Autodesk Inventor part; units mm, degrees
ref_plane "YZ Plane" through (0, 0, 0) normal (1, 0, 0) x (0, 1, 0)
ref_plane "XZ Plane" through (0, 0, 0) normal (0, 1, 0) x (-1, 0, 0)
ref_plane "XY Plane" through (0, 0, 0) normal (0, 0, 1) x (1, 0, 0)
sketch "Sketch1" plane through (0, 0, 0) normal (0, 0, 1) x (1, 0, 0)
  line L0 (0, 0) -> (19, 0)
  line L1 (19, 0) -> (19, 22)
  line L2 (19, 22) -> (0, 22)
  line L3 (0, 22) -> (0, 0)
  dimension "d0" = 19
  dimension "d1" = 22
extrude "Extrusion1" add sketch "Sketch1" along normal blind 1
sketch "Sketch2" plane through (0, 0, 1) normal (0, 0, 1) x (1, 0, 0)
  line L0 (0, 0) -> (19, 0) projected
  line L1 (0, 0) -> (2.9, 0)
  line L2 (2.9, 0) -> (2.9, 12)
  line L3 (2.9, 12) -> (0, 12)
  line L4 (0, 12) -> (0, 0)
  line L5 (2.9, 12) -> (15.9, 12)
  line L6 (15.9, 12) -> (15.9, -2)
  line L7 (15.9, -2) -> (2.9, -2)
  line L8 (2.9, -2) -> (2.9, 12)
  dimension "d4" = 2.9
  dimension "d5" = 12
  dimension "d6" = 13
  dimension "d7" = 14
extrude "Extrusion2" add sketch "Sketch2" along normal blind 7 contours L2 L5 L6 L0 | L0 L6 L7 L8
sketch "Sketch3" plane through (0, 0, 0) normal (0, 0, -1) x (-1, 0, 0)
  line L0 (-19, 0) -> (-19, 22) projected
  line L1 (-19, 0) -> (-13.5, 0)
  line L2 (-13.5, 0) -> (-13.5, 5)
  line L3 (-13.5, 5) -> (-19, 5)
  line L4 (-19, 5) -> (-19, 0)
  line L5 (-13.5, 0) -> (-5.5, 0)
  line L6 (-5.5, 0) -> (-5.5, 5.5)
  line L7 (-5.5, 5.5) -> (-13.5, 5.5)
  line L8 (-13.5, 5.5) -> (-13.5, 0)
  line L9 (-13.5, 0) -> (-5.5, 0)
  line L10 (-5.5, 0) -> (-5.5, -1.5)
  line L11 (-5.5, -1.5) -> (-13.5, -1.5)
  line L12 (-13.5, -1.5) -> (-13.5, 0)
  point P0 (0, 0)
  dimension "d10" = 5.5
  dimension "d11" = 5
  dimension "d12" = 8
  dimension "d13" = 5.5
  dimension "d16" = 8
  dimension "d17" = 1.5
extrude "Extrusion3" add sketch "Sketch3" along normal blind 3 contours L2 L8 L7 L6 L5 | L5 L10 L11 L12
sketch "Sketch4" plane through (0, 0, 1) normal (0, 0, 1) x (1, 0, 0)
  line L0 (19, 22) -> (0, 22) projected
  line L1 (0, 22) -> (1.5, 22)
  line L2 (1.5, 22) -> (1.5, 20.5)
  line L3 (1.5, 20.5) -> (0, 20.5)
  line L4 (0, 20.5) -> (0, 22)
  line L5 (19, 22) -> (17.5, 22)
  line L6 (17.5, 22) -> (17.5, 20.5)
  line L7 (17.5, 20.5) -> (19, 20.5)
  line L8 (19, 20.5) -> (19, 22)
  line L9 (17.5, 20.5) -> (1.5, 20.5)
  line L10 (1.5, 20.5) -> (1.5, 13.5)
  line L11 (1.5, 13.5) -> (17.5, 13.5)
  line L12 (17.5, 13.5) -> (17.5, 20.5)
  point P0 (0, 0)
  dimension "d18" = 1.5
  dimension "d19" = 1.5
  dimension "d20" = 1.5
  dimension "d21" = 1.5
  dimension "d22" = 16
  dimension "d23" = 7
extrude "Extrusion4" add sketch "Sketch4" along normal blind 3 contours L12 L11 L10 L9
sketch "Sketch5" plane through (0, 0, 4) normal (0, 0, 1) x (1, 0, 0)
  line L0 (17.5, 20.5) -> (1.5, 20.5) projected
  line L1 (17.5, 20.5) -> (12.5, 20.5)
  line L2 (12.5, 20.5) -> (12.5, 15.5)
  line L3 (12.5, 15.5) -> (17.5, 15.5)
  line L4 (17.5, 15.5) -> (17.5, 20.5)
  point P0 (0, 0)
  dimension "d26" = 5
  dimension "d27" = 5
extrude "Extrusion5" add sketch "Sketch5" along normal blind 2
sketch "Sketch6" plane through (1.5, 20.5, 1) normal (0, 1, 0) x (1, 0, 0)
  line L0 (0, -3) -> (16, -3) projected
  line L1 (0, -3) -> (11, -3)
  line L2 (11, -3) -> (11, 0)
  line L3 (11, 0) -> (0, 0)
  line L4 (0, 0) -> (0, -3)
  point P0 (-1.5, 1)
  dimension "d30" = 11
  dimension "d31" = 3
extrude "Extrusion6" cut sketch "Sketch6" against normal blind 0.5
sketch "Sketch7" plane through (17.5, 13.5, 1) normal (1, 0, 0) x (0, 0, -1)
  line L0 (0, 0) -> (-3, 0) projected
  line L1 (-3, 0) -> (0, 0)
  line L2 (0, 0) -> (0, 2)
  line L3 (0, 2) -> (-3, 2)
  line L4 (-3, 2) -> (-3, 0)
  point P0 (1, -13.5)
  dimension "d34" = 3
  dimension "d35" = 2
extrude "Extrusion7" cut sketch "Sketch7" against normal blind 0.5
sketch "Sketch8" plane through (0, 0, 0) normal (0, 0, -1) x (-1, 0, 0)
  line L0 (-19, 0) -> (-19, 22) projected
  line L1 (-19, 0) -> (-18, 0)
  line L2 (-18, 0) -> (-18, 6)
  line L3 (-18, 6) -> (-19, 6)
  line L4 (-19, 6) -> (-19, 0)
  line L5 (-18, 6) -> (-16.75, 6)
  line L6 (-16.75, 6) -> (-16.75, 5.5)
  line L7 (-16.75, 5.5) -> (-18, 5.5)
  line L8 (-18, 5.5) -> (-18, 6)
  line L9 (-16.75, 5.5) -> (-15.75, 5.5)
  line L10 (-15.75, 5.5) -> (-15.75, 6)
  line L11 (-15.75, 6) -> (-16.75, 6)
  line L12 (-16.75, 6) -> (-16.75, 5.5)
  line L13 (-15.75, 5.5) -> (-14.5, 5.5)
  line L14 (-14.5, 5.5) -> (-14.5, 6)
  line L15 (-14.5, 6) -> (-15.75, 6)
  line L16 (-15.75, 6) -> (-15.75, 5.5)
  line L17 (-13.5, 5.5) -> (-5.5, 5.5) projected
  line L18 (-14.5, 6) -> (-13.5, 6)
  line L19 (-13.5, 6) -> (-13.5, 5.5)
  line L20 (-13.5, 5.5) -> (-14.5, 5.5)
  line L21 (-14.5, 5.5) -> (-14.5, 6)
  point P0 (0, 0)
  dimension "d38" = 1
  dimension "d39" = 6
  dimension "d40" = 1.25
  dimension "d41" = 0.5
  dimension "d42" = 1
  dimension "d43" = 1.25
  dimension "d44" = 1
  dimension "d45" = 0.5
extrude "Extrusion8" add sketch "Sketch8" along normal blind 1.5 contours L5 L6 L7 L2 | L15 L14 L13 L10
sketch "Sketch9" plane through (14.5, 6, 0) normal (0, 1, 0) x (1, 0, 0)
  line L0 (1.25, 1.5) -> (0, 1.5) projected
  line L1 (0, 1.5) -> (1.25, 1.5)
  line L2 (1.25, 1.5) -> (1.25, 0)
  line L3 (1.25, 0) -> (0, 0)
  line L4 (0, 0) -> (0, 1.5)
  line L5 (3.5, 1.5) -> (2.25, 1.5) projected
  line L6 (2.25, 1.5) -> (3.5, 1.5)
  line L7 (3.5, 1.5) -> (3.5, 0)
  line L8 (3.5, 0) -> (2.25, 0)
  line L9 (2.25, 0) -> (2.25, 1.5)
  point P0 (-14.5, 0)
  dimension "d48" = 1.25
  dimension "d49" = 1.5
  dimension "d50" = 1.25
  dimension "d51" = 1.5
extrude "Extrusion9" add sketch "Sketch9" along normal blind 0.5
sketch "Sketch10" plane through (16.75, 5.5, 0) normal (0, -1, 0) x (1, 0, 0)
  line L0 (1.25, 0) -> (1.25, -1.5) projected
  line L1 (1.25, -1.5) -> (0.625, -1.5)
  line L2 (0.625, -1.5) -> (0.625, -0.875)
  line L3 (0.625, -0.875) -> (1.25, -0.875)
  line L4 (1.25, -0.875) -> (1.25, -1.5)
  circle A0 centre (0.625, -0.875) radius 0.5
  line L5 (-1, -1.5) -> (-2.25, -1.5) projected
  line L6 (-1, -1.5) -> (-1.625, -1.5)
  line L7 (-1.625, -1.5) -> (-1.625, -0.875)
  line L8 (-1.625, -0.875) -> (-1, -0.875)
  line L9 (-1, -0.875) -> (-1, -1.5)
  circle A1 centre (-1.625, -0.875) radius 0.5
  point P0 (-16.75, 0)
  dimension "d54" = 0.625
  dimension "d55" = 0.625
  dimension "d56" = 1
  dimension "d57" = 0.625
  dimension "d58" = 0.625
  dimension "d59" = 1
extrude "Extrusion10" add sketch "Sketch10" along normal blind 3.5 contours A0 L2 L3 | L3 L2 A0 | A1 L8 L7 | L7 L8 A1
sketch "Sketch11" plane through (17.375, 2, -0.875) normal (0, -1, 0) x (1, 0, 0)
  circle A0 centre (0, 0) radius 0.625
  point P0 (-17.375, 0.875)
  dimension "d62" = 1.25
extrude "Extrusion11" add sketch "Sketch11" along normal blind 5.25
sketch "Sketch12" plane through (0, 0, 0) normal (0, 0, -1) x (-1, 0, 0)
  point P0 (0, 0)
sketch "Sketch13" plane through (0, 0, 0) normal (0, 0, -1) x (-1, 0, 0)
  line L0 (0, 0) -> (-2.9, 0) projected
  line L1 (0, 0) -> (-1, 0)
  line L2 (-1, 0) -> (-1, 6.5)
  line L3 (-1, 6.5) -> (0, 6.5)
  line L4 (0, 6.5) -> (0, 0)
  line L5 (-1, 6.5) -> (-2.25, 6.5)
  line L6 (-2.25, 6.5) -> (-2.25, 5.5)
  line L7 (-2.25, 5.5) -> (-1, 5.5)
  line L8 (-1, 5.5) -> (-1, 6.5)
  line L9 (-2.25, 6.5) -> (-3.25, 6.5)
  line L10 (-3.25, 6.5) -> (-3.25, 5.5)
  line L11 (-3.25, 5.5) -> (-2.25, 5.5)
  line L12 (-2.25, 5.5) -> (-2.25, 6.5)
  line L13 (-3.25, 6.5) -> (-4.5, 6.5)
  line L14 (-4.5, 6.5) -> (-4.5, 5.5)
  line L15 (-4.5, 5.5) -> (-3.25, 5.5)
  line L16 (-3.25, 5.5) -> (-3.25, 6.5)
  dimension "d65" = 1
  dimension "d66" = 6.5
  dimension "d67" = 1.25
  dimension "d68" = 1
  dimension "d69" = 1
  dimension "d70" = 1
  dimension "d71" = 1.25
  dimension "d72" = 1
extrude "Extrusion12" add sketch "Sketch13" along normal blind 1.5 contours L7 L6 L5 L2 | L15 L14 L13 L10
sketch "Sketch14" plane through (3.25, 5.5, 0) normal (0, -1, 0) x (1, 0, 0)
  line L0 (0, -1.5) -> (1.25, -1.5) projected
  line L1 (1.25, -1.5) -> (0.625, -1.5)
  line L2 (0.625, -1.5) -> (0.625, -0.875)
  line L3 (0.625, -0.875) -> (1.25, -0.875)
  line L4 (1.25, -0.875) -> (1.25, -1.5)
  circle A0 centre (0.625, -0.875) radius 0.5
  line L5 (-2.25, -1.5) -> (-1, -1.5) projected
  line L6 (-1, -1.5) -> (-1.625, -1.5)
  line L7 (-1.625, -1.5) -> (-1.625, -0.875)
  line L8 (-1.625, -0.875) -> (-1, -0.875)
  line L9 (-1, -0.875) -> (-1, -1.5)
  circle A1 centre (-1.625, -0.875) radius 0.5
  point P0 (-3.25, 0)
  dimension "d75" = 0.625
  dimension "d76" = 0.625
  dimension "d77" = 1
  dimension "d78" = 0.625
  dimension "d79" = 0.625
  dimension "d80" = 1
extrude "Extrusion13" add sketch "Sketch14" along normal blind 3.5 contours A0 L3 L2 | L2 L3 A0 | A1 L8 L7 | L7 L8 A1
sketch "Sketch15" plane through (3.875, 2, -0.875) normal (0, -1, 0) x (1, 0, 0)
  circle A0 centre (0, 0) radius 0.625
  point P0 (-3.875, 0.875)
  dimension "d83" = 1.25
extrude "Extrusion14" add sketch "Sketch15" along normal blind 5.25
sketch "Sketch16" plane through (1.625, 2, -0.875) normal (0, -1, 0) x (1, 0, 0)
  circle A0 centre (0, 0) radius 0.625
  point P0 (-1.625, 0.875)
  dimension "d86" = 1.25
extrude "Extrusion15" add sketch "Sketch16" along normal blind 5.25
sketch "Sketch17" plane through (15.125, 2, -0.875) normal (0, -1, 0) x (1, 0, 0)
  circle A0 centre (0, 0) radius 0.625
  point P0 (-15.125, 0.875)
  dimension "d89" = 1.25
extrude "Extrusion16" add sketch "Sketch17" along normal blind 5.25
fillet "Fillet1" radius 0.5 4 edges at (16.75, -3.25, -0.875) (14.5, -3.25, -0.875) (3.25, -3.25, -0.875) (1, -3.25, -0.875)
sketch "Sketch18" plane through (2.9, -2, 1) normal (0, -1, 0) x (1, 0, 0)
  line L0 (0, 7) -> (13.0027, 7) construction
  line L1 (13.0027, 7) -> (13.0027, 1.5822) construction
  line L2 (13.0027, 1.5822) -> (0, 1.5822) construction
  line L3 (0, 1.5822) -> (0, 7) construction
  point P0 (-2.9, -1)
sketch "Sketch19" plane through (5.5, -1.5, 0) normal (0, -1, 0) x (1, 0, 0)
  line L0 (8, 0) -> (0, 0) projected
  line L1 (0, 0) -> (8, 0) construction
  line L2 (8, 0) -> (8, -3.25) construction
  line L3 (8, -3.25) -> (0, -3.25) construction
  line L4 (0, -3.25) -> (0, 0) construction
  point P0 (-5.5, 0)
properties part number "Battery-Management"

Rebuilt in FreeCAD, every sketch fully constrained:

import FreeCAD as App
import Part
import Sketcher
Q = App.Units.Quantity


def edges_at(feature, points):
    """Names of the edges that pass closest to the given points."""
    edges = feature.Shape.Edges
    near = lambda p: min(range(len(edges)), key=lambda i: edges[i].distToShape(Part.Vertex(*p))[0])
    return sorted({f"Edge{near(p) + 1}" for p in points})


def add_polygon(sketch, points):
    """Adds a closed chain of lines whose ends are joined by coincident constraints."""
    first, n = sketch.GeometryCount, len(points)
    for a, b in zip(points, points[1:] + points[:1]):
        sketch.addGeometry(Part.LineSegment(App.Vector(*a, 0), App.Vector(*b, 0)), False)
    for i in range(n):
        sketch.addConstraint(Sketcher.Constraint("Coincident", first + i, 2, first + (i + 1) % n, 1))

doc = App.newDocument("Part")
params = doc.addObject("Spreadsheet::Sheet", "Params")
for row, (alias, value) in enumerate([
    ("sketch1_width", "19 mm"),
    ("sketch1_height", "22 mm"),
    ("pad1_length", "1 mm"),
    ("sketch2_width", "13 mm"),
    ("sketch2_height", "14 mm"),
    ("pad2_length", "7 mm"),
    ("sketch3_width", "8 mm"),
    ("pad3_length", "3 mm"),
    ("sketch4_width", "16 mm"),
    ("sketch4_height", "7 mm"),
    ("pad4_length", "3 mm"),
    ("sketch5_width", "5 mm"),
    ("pad5_length", "2 mm"),
    ("sketch6_width", "11 mm"),
    ("sketch6_height", "3 mm"),
    ("pocket1_length", "0.5 mm"),
    ("sketch7_width", "2 mm"),
    ("sketch7_height", "3 mm"),
    ("pocket2_length", "0.5 mm"),
    ("sketch8_height", "0.5 mm"),
    ("sketch8_width", "1.25 mm"),
    ("pad6_length", "1.5 mm"),
    ("sketch9_height", "1.5 mm"),
    ("sketch9_width", "1.25 mm"),
    ("pad7_length", "0.5 mm"),
    ("sketch10_diameter", "1 mm"),
    ("pad8_length", "3.5 mm"),
    ("sketch11_diameter", "1.25 mm"),
    ("pad9_length", "5.25 mm"),
    ("sketch12_height", "1 mm"),
    ("sketch12_width", "1.25 mm"),
    ("pad10_length", "1.5 mm"),
    ("sketch13_diameter", "1 mm"),
    ("pad11_length", "3.5 mm"),
    ("sketch14_diameter", "1.25 mm"),
    ("pad12_length", "5.25 mm"),
    ("sketch15_diameter", "1.25 mm"),
    ("pad13_length", "5.25 mm"),
    ("sketch16_diameter", "1.25 mm"),
    ("pad14_length", "5.25 mm"),
    ("fillet_radius", "0.5 mm"),
], start=1):
    params.set(f"A{row}", alias)
    params.set(f"B{row}", "=" + value)
    params.setAlias(f"B{row}", alias)

body = doc.addObject("PartDesign::Body", "Body")

# Sketch on XY plane
sketch1 = body.newObject("Sketcher::SketchObject", "Sketch")
sketch1.AttachmentSupport = (doc.getObject("XY_Plane"), [""])
sketch1.MapMode = "FlatFace"
add_polygon(sketch1, [(0, 22), (0, 0), (19, 0), (19, 22)])  # lines 0-3
sketch1.addConstraint([
    Sketcher.Constraint("Vertical", 0),
    Sketcher.Constraint("Horizontal", 1),
    Sketcher.Constraint("Vertical", 2),
    Sketcher.Constraint("Horizontal", 3),
    Sketcher.Constraint("Coincident", 0, 2, -1, 1),
    Sketcher.Constraint("DistanceX", 1, 1, 1, 2, Q("19 mm")),
    Sketcher.Constraint("DistanceY", 0, 2, 0, 1, Q("22 mm")),
])
sketch1.setExpression("Constraints[9]", "Params.sketch1_width")
sketch1.setExpression("Constraints[10]", "Params.sketch1_height")
pad1 = body.newObject("PartDesign::Pad", "Pad")
pad1.Profile = sketch1
pad1.setExpression("Length", "Params.pad1_length")

# Sketch on XY plane
sketch2 = body.newObject("Sketcher::SketchObject", "Sketch001")
sketch2.AttachmentSupport = (doc.getObject("XY_Plane"), [""])
sketch2.MapMode = "FlatFace"
sketch2.AttachmentOffset = App.Placement(App.Vector(0, 0, 1), App.Rotation())
add_polygon(sketch2, [(2.9, 12), (2.9, -2), (15.9, -2), (15.9, 12)])  # lines 0-3
sketch2.addConstraint([
    Sketcher.Constraint("Vertical", 0),
    Sketcher.Constraint("Horizontal", 1),
    Sketcher.Constraint("Vertical", 2),
    Sketcher.Constraint("Horizontal", 3),
    Sketcher.Constraint("DistanceX", 1, 1, 1, 2, Q("13 mm")),
    Sketcher.Constraint("DistanceY", 0, 2, 0, 1, Q("14 mm")),
    Sketcher.Constraint("DistanceY", -1, 1, 2, 2, Q("12 mm")),
    Sketcher.Constraint("DistanceX", -1, 1, 0, 2, Q("2.9 mm")),
])
sketch2.setExpression("Constraints[8]", "Params.sketch2_width")
sketch2.setExpression("Constraints[9]", "Params.sketch2_height")
pad2 = body.newObject("PartDesign::Pad", "Pad001")
pad2.Profile = sketch2
pad2.setExpression("Length", "Params.pad2_length")

# Sketch on XY plane
sketch3 = body.newObject("Sketcher::SketchObject", "Sketch002")
sketch3.AttachmentSupport = (doc.getObject("XY_Plane"), [""])
sketch3.MapMode = "FlatFace"
add_polygon(sketch3, [(13.5, -1.5), (5.5, -1.5), (5.5, 5.5), (13.5, 5.5)])  # lines 0-3
sketch3.addConstraint([
    Sketcher.Constraint("Horizontal", 0),
    Sketcher.Constraint("Vertical", 1),
    Sketcher.Constraint("Horizontal", 2),
    Sketcher.Constraint("Vertical", 3),
    Sketcher.Constraint("DistanceX", 0, 2, 0, 1, Q("8 mm")),
    Sketcher.Constraint("DistanceX", -1, 1, 0, 2, Q("5.5 mm")),
    Sketcher.Constraint("DistanceY", 0, 2, -1, 1, Q("1.5 mm")),
    Sketcher.Constraint("DistanceY", -1, 1, 1, 2, Q("5.5 mm")),
])
sketch3.setExpression("Constraints[8]", "Params.sketch3_width")
pad3 = body.newObject("PartDesign::Pad", "Pad002")
pad3.Profile = sketch3
pad3.setExpression("Length", "Params.pad3_length")
pad3.Reversed = True

# Sketch on XY plane
sketch4 = body.newObject("Sketcher::SketchObject", "Sketch003")
sketch4.AttachmentSupport = (doc.getObject("XY_Plane"), [""])
sketch4.MapMode = "FlatFace"
sketch4.AttachmentOffset = App.Placement(App.Vector(0, 0, 1), App.Rotation())
add_polygon(sketch4, [(17.5, 13.5), (17.5, 20.5), (1.5, 20.5), (1.5, 13.5)])  # lines 0-3
sketch4.addConstraint([
    Sketcher.Constraint("Vertical", 0),
    Sketcher.Constraint("Horizontal", 1),
    Sketcher.Constraint("Vertical", 2),
    Sketcher.Constraint("Horizontal", 3),
    Sketcher.Constraint("DistanceX", 1, 2, 1, 1, Q("16 mm")),
    Sketcher.Constraint("DistanceY", 0, 1, 0, 2, Q("7 mm")),
    Sketcher.Constraint("DistanceX", -1, 1, 1, 2, Q("1.5 mm")),
    Sketcher.Constraint("DistanceY", -1, 1, 0, 2, Q("20.5 mm")),
])
sketch4.setExpression("Constraints[8]", "Params.sketch4_width")
sketch4.setExpression("Constraints[9]", "Params.sketch4_height")
pad4 = body.newObject("PartDesign::Pad", "Pad003")
pad4.Profile = sketch4
pad4.setExpression("Length", "Params.pad4_length")

# Sketch on XY plane
sketch5 = body.newObject("Sketcher::SketchObject", "Sketch004")
sketch5.AttachmentSupport = (doc.getObject("XY_Plane"), [""])
sketch5.MapMode = "FlatFace"
sketch5.AttachmentOffset = App.Placement(App.Vector(0, 0, 4), App.Rotation())
add_polygon(sketch5, [(17.5, 15.5), (17.5, 20.5), (12.5, 20.5), (12.5, 15.5)])  # lines 0-3
sketch5.addConstraint([
    Sketcher.Constraint("Vertical", 0),
    Sketcher.Constraint("Horizontal", 1),
    Sketcher.Constraint("Vertical", 2),
    Sketcher.Constraint("Horizontal", 3),
    Sketcher.Constraint("Equal", 3, 0),
    Sketcher.Constraint("DistanceX", 1, 2, 1, 1, Q("5 mm")),
    Sketcher.Constraint("DistanceX", -1, 1, 0, 2, Q("17.5 mm")),
    Sketcher.Constraint("DistanceY", -1, 1, 0, 2, Q("20.5 mm")),
])
sketch5.setExpression("Constraints[9]", "Params.sketch5_width")
pad5 = body.newObject("PartDesign::Pad", "Pad004")
pad5.Profile = sketch5
pad5.setExpression("Length", "Params.pad5_length")

# Sketch on XZ plane
sketch6 = body.newObject("Sketcher::SketchObject", "Sketch005")
sketch6.AttachmentSupport = (doc.getObject("XZ_Plane"), [""])
sketch6.MapMode = "FlatFace"
sketch6.AttachmentOffset = App.Placement(App.Vector(0, 0, -20.5), App.Rotation())
add_polygon(sketch6, [(1.5, 1), (1.5, 4), (12.5, 4), (12.5, 1)])  # lines 0-3
sketch6.addConstraint([
    Sketcher.Constraint("Vertical", 0),
    Sketcher.Constraint("Horizontal", 1),
    Sketcher.Constraint("Vertical", 2),
    Sketcher.Constraint("Horizontal", 3),
    Sketcher.Constraint("DistanceX", 1, 1, 1, 2, Q("11 mm")),
    Sketcher.Constraint("DistanceY", 0, 1, 0, 2, Q("3 mm")),
    Sketcher.Constraint("DistanceY", -1, 1, 0, 2, Q("4 mm")),
    Sketcher.Constraint("DistanceX", -1, 1, 0, 2, Q("1.5 mm")),
])
sketch6.setExpression("Constraints[8]", "Params.sketch6_width")
sketch6.setExpression("Constraints[9]", "Params.sketch6_height")
pocket1 = body.newObject("PartDesign::Pocket", "Pocket")
pocket1.Profile = sketch6
pocket1.setExpression("Length", "Params.pocket1_length")
pocket1.Reversed = True

# Sketch on YZ plane
sketch7 = body.newObject("Sketcher::SketchObject", "Sketch006")
sketch7.AttachmentSupport = (doc.getObject("YZ_Plane"), [""])
sketch7.MapMode = "FlatFace"
sketch7.AttachmentOffset = App.Placement(App.Vector(0, 0, 17.5), App.Rotation())
add_polygon(sketch7, [(13.5, 4), (13.5, 1), (15.5, 1), (15.5, 4)])  # lines 0-3
sketch7.addConstraint([
    Sketcher.Constraint("Vertical", 0),
    Sketcher.Constraint("Horizontal", 1),
    Sketcher.Constraint("Vertical", 2),
    Sketcher.Constraint("Horizontal", 3),
    Sketcher.Constraint("DistanceX", 1, 1, 1, 2, Q("2 mm")),
    Sketcher.Constraint("DistanceY", 0, 2, 0, 1, Q("3 mm")),
    Sketcher.Constraint("DistanceY", -1, 1, 0, 2, Q("1 mm")),
    Sketcher.Constraint("DistanceX", -1, 1, 0, 2, Q("13.5 mm")),
])
sketch7.setExpression("Constraints[8]", "Params.sketch7_width")
sketch7.setExpression("Constraints[9]", "Params.sketch7_height")
pocket2 = body.newObject("PartDesign::Pocket", "Pocket001")
pocket2.Profile = sketch7
pocket2.setExpression("Length", "Params.pocket2_length")

# Sketch on XY plane
sketch8 = body.newObject("Sketcher::SketchObject", "Sketch007")
sketch8.AttachmentSupport = (doc.getObject("XY_Plane"), [""])
sketch8.MapMode = "FlatFace"
add_polygon(sketch8, [(16.75, 6), (18, 6), (18, 5.5), (16.75, 5.5)])  # lines 0-3
add_polygon(sketch8, [(14.5, 6), (15.75, 6), (15.75, 5.5), (14.5, 5.5)])  # lines 4-7
sketch8.addConstraint([
    Sketcher.Constraint("Horizontal", 0),
    Sketcher.Constraint("Vertical", 1),
    Sketcher.Constraint("Horizontal", 2),
    Sketcher.Constraint("Vertical", 3),
    Sketcher.Constraint("Horizontal", 4),
    Sketcher.Constraint("Vertical", 5),
    Sketcher.Constraint("Horizontal", 6),
    Sketcher.Constraint("Vertical", 7),
    Sketcher.Constraint("Horizontal", 3, 2, 4, 2),
    Sketcher.Constraint("Horizontal", 2, 2, 5, 2),
    Sketcher.Constraint("Equal", 2, 4),
    Sketcher.Constraint("DistanceY", 1, 2, 1, 1, Q("0.5 mm")),
    Sketcher.Constraint("DistanceY", -1, 1, 0, 2, Q("6 mm")),
    Sketcher.Constraint("DistanceX", 4, 2, 3, 2, Q("1 mm")),
    Sketcher.Constraint("DistanceX", 0, 1, 0, 2, Q("1.25 mm")),
    Sketcher.Constraint("DistanceX", -1, 1, 0, 2, Q("18 mm")),
])
sketch8.setExpression("Constraints[19]", "Params.sketch8_height")
sketch8.setExpression("Constraints[22]", "Params.sketch8_width")
pad6 = body.newObject("PartDesign::Pad", "Pad005")
pad6.Profile = sketch8
pad6.setExpression("Length", "Params.pad6_length")
pad6.Reversed = True

# Sketch on XZ plane
sketch9 = body.newObject("Sketcher::SketchObject", "Sketch008")
sketch9.AttachmentSupport = (doc.getObject("XZ_Plane"), [""])
sketch9.MapMode = "FlatFace"
sketch9.AttachmentOffset = App.Placement(App.Vector(0, 0, -6), App.Rotation())
add_polygon(sketch9, [(15.75, 0), (15.75, -1.5), (14.5, -1.5), (14.5, 0)])  # lines 0-3
add_polygon(sketch9, [(18, 0), (18, -1.5), (16.75, -1.5), (16.75, 0)])  # lines 4-7
sketch9.addConstraint([
    Sketcher.Constraint("Vertical", 0),
    Sketcher.Constraint("Horizontal", 1),
    Sketcher.Constraint("Vertical", 2),
    Sketcher.Constraint("Horizontal", 3),
    Sketcher.Constraint("Vertical", 4),
    Sketcher.Constraint("Horizontal", 5),
    Sketcher.Constraint("Vertical", 6),
    Sketcher.Constraint("Horizontal", 7),
    Sketcher.Constraint("PointOnObject", 2, 2, -1),
    Sketcher.Constraint("PointOnObject", 6, 2, -1),
    Sketcher.Constraint("Horizontal", 1, 2, 4, 2),
    Sketcher.Constraint("Equal", 3, 5),
    Sketcher.Constraint("DistanceY", 0, 2, 0, 1, Q("1.5 mm")),
    Sketcher.Constraint("DistanceX", 1, 2, 1, 1, Q("1.25 mm")),
    Sketcher.Constraint("DistanceX", -1, 1, 4, 2, Q("18 mm")),
    Sketcher.Constraint("DistanceX", 0, 2, 5, 2, Q("1 mm")),
])
sketch9.setExpression("Constraints[20]", "Params.sketch9_height")
sketch9.setExpression("Constraints[21]", "Params.sketch9_width")
pad7 = body.newObject("PartDesign::Pad", "Pad006")
pad7.Profile = sketch9
pad7.setExpression("Length", "Params.pad7_length")
pad7.Reversed = True

# Sketch on XZ plane
sketch10 = body.newObject("Sketcher::SketchObject", "Sketch009")
sketch10.AttachmentSupport = (doc.getObject("XZ_Plane"), [""])
sketch10.MapMode = "FlatFace"
sketch10.AttachmentOffset = App.Placement(App.Vector(0, 0, -5.5), App.Rotation())
sketch10.addGeometry([
    Part.Circle(App.Vector(17.375, -0.875, 0), App.Vector(0, 0, 1), 0.5),
    Part.Circle(App.Vector(15.125, -0.875, 0), App.Vector(0, 0, 1), 0.5),
], False)
sketch10.addConstraint([
    Sketcher.Constraint("Equal", 0, 1),
    Sketcher.Constraint("Horizontal", 0, 3, 1, 3),
    Sketcher.Constraint("Diameter", 0, Q("1 mm")),
    Sketcher.Constraint("DistanceX", 1, 3, 0, 3, Q("2.25 mm")),
    Sketcher.Constraint("DistanceX", -1, 1, 0, 3, Q("17.375 mm")),
    Sketcher.Constraint("DistanceY", 0, 3, -1, 1, Q("0.875 mm")),
])
sketch10.setExpression("Constraints[2]", "Params.sketch10_diameter")
pad8 = body.newObject("PartDesign::Pad", "Pad007")
pad8.Profile = sketch10
pad8.setExpression("Length", "Params.pad8_length")

# Sketch on XZ plane
sketch11 = body.newObject("Sketcher::SketchObject", "Sketch010")
sketch11.AttachmentSupport = (doc.getObject("XZ_Plane"), [""])
sketch11.MapMode = "FlatFace"
sketch11.AttachmentOffset = App.Placement(App.Vector(0, 0, -2), App.Rotation())
sketch11.addGeometry(Part.Circle(App.Vector(17.375, -0.875, 0), App.Vector(0, 0, 1), 0.625), False)
sketch11.addConstraint([
    Sketcher.Constraint("Diameter", 0, Q("1.25 mm")),
    Sketcher.Constraint("DistanceX", -1, 1, 0, 3, Q("17.375 mm")),
    Sketcher.Constraint("DistanceY", 0, 3, -1, 1, Q("0.875 mm")),
])
sketch11.setExpression("Constraints[0]", "Params.sketch11_diameter")
pad9 = body.newObject("PartDesign::Pad", "Pad008")
pad9.Profile = sketch11
pad9.setExpression("Length", "Params.pad9_length")

# Sketch on XY plane
sketch12 = body.newObject("Sketcher::SketchObject", "Sketch011")
sketch12.AttachmentSupport = (doc.getObject("XY_Plane"), [""])
sketch12.MapMode = "FlatFace"
add_polygon(sketch12, [(2.25, 5.5), (1, 5.5), (1, 6.5), (2.25, 6.5)])  # lines 0-3
add_polygon(sketch12, [(4.5, 5.5), (3.25, 5.5), (3.25, 6.5), (4.5, 6.5)])  # lines 4-7
sketch12.addConstraint([
    Sketcher.Constraint("Horizontal", 0),
    Sketcher.Constraint("Vertical", 1),
    Sketcher.Constraint("Horizontal", 2),
    Sketcher.Constraint("Vertical", 3),
    Sketcher.Constraint("Horizontal", 4),
    Sketcher.Constraint("Vertical", 5),
    Sketcher.Constraint("Horizontal", 6),
    Sketcher.Constraint("Vertical", 7),
    Sketcher.Constraint("Horizontal", 3, 2, 4, 2),
    Sketcher.Constraint("Horizontal", 2, 2, 5, 2),
    Sketcher.Constraint("Equal", 2, 4),
    Sketcher.Constraint("DistanceY", 1, 1, 1, 2, Q("1 mm")),
    Sketcher.Constraint("DistanceX", -1, 1, 0, 2, Q("1 mm")),
    Sketcher.Constraint("DistanceX", 3, 2, 4, 2, Q("1 mm")),
    Sketcher.Constraint("DistanceX", 0, 2, 0, 1, Q("1.25 mm")),
    Sketcher.Constraint("DistanceY", -1, 1, 1, 2, Q("6.5 mm")),
])
sketch12.setExpression("Constraints[19]", "Params.sketch12_height")
sketch12.setExpression("Constraints[22]", "Params.sketch12_width")
pad10 = body.newObject("PartDesign::Pad", "Pad009")
pad10.Profile = sketch12
pad10.setExpression("Length", "Params.pad10_length")
pad10.Reversed = True

# Sketch on XZ plane
sketch13 = body.newObject("Sketcher::SketchObject", "Sketch012")
sketch13.AttachmentSupport = (doc.getObject("XZ_Plane"), [""])
sketch13.MapMode = "FlatFace"
sketch13.AttachmentOffset = App.Placement(App.Vector(0, 0, -5.5), App.Rotation())
sketch13.addGeometry([
    Part.Circle(App.Vector(3.875, -0.875, 0), App.Vector(0, 0, 1), 0.5),
    Part.Circle(App.Vector(1.625, -0.875, 0), App.Vector(0, 0, 1), 0.5),
], False)
sketch13.addConstraint([
    Sketcher.Constraint("Equal", 0, 1),
    Sketcher.Constraint("Horizontal", 0, 3, 1, 3),
    Sketcher.Constraint("Diameter", 0, Q("1 mm")),
    Sketcher.Constraint("DistanceX", 1, 3, 0, 3, Q("2.25 mm")),
    Sketcher.Constraint("DistanceX", -1, 1, 0, 3, Q("3.875 mm")),
    Sketcher.Constraint("DistanceY", 0, 3, -1, 1, Q("0.875 mm")),
])
sketch13.setExpression("Constraints[2]", "Params.sketch13_diameter")
pad11 = body.newObject("PartDesign::Pad", "Pad010")
pad11.Profile = sketch13
pad11.setExpression("Length", "Params.pad11_length")

# Sketch on XZ plane
sketch14 = body.newObject("Sketcher::SketchObject", "Sketch013")
sketch14.AttachmentSupport = (doc.getObject("XZ_Plane"), [""])
sketch14.MapMode = "FlatFace"
sketch14.AttachmentOffset = App.Placement(App.Vector(0, 0, -2), App.Rotation())
sketch14.addGeometry(Part.Circle(App.Vector(3.875, -0.875, 0), App.Vector(0, 0, 1), 0.625), False)
sketch14.addConstraint([
    Sketcher.Constraint("Diameter", 0, Q("1.25 mm")),
    Sketcher.Constraint("DistanceX", -1, 1, 0, 3, Q("3.875 mm")),
    Sketcher.Constraint("DistanceY", 0, 3, -1, 1, Q("0.875 mm")),
])
sketch14.setExpression("Constraints[0]", "Params.sketch14_diameter")
pad12 = body.newObject("PartDesign::Pad", "Pad011")
pad12.Profile = sketch14
pad12.setExpression("Length", "Params.pad12_length")

# Sketch on XZ plane
sketch15 = body.newObject("Sketcher::SketchObject", "Sketch014")
sketch15.AttachmentSupport = (doc.getObject("XZ_Plane"), [""])
sketch15.MapMode = "FlatFace"
sketch15.AttachmentOffset = App.Placement(App.Vector(0, 0, -2), App.Rotation())
sketch15.addGeometry(Part.Circle(App.Vector(1.625, -0.875, 0), App.Vector(0, 0, 1), 0.625), False)
sketch15.addConstraint([
    Sketcher.Constraint("Diameter", 0, Q("1.25 mm")),
    Sketcher.Constraint("DistanceX", -1, 1, 0, 3, Q("1.625 mm")),
    Sketcher.Constraint("DistanceY", 0, 3, -1, 1, Q("0.875 mm")),
])
sketch15.setExpression("Constraints[0]", "Params.sketch15_diameter")
pad13 = body.newObject("PartDesign::Pad", "Pad012")
pad13.Profile = sketch15
pad13.setExpression("Length", "Params.pad13_length")

# Sketch on XZ plane
sketch16 = body.newObject("Sketcher::SketchObject", "Sketch015")
sketch16.AttachmentSupport = (doc.getObject("XZ_Plane"), [""])
sketch16.MapMode = "FlatFace"
sketch16.AttachmentOffset = App.Placement(App.Vector(0, 0, -2), App.Rotation())
sketch16.addGeometry(Part.Circle(App.Vector(15.125, -0.875, 0), App.Vector(0, 0, 1), 0.625), False)
sketch16.addConstraint([
    Sketcher.Constraint("Diameter", 0, Q("1.25 mm")),
    Sketcher.Constraint("DistanceX", -1, 1, 0, 3, Q("15.125 mm")),
    Sketcher.Constraint("DistanceY", 0, 3, -1, 1, Q("0.875 mm")),
])
sketch16.setExpression("Constraints[0]", "Params.sketch16_diameter")
pad14 = body.newObject("PartDesign::Pad", "Pad013")
pad14.Profile = sketch16
pad14.setExpression("Length", "Params.pad14_length")
doc.recompute()

fillet = body.newObject("PartDesign::Fillet", "Fillet")
fillet.Base = (pad14, edges_at(pad14, [
    (16.75, -3.25, -0.875),
    (14.5, -3.25, -0.875),
    (3.25, -3.25, -0.875),
    (1, -3.25, -0.875),
]))
fillet.setExpression("Radius", "Params.fillet_radius")

doc.recompute()
